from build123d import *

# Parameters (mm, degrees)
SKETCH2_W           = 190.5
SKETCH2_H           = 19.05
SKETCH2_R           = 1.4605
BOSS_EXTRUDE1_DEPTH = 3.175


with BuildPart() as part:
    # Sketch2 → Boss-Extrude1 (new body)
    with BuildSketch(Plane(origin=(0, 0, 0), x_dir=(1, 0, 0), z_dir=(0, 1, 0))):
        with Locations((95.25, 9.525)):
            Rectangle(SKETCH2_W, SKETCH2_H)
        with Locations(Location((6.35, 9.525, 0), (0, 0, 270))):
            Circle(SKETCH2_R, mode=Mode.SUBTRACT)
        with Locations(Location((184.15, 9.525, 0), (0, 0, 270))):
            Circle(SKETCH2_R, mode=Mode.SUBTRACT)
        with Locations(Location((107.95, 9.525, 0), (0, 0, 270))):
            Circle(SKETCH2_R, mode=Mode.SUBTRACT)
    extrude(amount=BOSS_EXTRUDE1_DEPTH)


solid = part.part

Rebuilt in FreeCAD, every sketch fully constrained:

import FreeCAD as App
import Part
import Sketcher
Q = App.Units.Quantity

doc = App.newDocument("Part")
body = doc.addObject("PartDesign::Body", "Body")

# Sketch on XZ plane
sketch1 = body.newObject("Sketcher::SketchObject", "Sketch")
sketch1.AttachmentSupport = (doc.getObject("XZ_Plane"), [""])
sketch1.MapMode = "FlatFace"
sketch1.addGeometry(Part.LineSegment(App.Vector(0, -19.1, 0), App.Vector(0, 0, 0)), False)
sketch1.addGeometry(Part.LineSegment(App.Vector(0, 0, 0), App.Vector(190.5, 0, 0)), False)
sketch1.addGeometry(Part.LineSegment(App.Vector(190.5, 0, 0), App.Vector(190.5, -19.1, 0)), False)
sketch1.addGeometry(Part.LineSegment(App.Vector(190.5, -19.1, 0), App.Vector(0, -19.1, 0)), False)
sketch1.addGeometry(Part.Circle(App.Vector(6.3, -9.5, 0), App.Vector(0, 0, 1), 1.5), False)
sketch1.addGeometry(Part.Circle(App.Vector(108, -9.5, 0), App.Vector(0, 0, 1), 1.5), False)
sketch1.addGeometry(Part.Circle(App.Vector(184.2, -9.5, 0), App.Vector(0, 0, 1), 1.5), False)
sketch1.addConstraint(Sketcher.Constraint("Coincident", 0, 2, 1, 1))
sketch1.addConstraint(Sketcher.Constraint("Coincident", 1, 2, 2, 1))
sketch1.addConstraint(Sketcher.Constraint("Coincident", 2, 2, 3, 1))
sketch1.addConstraint(Sketcher.Constraint("Coincident", 3, 2, 0, 1))
sketch1.addConstraint(Sketcher.Constraint("Vertical", 0))
sketch1.addConstraint(Sketcher.Constraint("Horizontal", 1))
sketch1.addConstraint(Sketcher.Constraint("Vertical", 2))
sketch1.addConstraint(Sketcher.Constraint("Horizontal", 3))
sketch1.addConstraint(Sketcher.Constraint("Coincident", 0, 2, -1, 1))
sketch1.addConstraint(Sketcher.Constraint("Equal", 4, 5))
sketch1.addConstraint(Sketcher.Constraint("Equal", 5, 6))
sketch1.addConstraint(Sketcher.Constraint("Horizontal", 4, 3, 5, 3))
sketch1.addConstraint(Sketcher.Constraint("Horizontal", 5, 3, 6, 3))
sketch1.addConstraint(Sketcher.Constraint("Diameter", 4, Q("0.115 in")))
sketch1.addConstraint(Sketcher.Constraint("DistanceX", 1, 1, 1, 2, Q("7.5 in")))
sketch1.addConstraint(Sketcher.Constraint("DistanceX", 4, 3, 5, 3, Q("4 in")))
sketch1.addConstraint(Sketcher.Constraint("DistanceX", 5, 3, 6, 3, Q("3 in")))
sketch1.addConstraint(Sketcher.Constraint("DistanceY", 0, 1, 0, 2, Q("0.75 in")))
sketch1.addConstraint(Sketcher.Constraint("DistanceX", -1, 1, 4, 3, Q("0.25 in")))
sketch1.addConstraint(Sketcher.Constraint("DistanceY", 4, 3, -1, 1, Q("0.375 in")))
pad1 = body.newObject("PartDesign::Pad", "Pad")
pad1.Profile = sketch1
pad1.Length = Q("0.125 in")
pad1.Reversed = True

doc.recompute()
